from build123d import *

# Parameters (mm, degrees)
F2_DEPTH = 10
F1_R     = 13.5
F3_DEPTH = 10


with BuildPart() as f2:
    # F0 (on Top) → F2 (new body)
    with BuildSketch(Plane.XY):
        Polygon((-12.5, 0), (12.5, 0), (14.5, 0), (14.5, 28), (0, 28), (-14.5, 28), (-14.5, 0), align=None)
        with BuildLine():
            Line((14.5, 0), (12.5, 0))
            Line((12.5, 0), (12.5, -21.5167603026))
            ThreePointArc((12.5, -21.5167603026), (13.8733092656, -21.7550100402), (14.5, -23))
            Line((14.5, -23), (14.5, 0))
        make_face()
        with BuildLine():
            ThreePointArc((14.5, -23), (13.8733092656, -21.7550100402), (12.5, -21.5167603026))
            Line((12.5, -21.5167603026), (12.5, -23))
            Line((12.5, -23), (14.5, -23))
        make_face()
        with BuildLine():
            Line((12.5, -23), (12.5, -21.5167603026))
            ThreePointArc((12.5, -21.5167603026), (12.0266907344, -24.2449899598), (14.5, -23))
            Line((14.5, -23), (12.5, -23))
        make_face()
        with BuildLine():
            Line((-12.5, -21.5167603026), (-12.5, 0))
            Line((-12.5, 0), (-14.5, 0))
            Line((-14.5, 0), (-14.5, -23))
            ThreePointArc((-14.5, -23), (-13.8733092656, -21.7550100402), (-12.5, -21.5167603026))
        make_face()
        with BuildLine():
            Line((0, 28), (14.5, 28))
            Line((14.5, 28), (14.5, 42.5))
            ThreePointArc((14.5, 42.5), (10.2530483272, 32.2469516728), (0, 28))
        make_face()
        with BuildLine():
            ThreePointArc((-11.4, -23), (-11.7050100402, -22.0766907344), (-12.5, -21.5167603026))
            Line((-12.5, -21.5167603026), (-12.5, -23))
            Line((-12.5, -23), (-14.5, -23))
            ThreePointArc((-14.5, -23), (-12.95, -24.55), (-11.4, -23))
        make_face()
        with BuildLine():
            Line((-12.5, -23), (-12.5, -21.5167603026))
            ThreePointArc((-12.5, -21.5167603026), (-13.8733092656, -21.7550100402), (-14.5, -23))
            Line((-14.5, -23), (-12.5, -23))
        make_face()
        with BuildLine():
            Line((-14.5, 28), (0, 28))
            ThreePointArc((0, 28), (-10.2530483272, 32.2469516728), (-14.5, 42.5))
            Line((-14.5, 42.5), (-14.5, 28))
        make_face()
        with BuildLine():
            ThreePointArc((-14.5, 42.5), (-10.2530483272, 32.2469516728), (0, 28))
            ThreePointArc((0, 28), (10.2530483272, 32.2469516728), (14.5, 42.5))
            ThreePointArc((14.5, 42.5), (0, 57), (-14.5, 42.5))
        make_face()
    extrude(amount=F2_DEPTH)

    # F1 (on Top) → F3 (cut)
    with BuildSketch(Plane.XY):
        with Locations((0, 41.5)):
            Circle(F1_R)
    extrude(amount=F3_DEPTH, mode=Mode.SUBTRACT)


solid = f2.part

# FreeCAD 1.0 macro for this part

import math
import FreeCAD as App
import Part
import Sketcher

V = App.Vector
Q = App.Units.Quantity

doc = App.newDocument("Part")
body = doc.addObject("PartDesign::Body", "Body")

sketch1 = doc.addObject("Sketcher::SketchObject", "Sketch")
body.addObject(sketch1)
sketch1.AttachmentSupport = (doc.XY_Plane, [""])
sketch1.MapMode = "FlatFace"
sketch1.addGeometry([
    Part.ArcOfCircle(Part.Circle(V(-12.9, -23, 0), V(0, 0, 1), 1.6), math.radians(180), math.radians(360)),
    Part.ArcOfCircle(Part.Circle(V(-12.9, -23, 0), V(0, 0, 1), 1.6), math.radians(0), math.radians(73)),
    Part.LineSegment(V(-12.5, -21.5, 0), V(-12.5, 0, 0)),
    Part.LineSegment(V(-12.5, 0, 0), V(12.5, 0, 0)),
    Part.LineSegment(V(12.5, 0, 0), V(12.5, -21.5, 0)),
    Part.ArcOfCircle(Part.Circle(V(12.9, -23, 0), V(0, 0, 1), 1.6), math.radians(107), math.radians(360)),
    Part.LineSegment(V(14.5, -23, 0), V(14.5, 42.5, 0)),
    Part.ArcOfCircle(Part.Circle(V(0, 42.5, 0), V(0, 0, 1), 14.5), math.radians(0), math.radians(180)),
    Part.LineSegment(V(-14.5, 42.5, 0), V(-14.5, -23, 0)),
], False)
sketch1.addConstraint([
    Sketcher.Constraint("Tangent", 0, 2, 1, 1),
    Sketcher.Constraint("Coincident", 1, 2, 2, 1),
    Sketcher.Constraint("Coincident", 2, 2, 3, 1),
    Sketcher.Constraint("Coincident", 3, 2, 4, 1),
    Sketcher.Constraint("Coincident", 4, 2, 5, 1),
    Sketcher.Constraint("Tangent", 5, 2, 6, 1),
    Sketcher.Constraint("Tangent", 6, 2, 7, 1),
    Sketcher.Constraint("Tangent", 7, 2, 8, 1),
    Sketcher.Constraint("Tangent", 8, 2, 0, 1),
    Sketcher.Constraint("Vertical", 2),
    Sketcher.Constraint("Horizontal", 3),
    Sketcher.Constraint("Vertical", 4),
    Sketcher.Constraint("Vertical", 6),
    Sketcher.Constraint("Vertical", 8),
    Sketcher.Constraint("Equal", 0, 1),
    Sketcher.Constraint("Equal", 1, 5),
    Sketcher.Constraint("Symmetric", 2, 2, 3, 2, -1, 1),
    Sketcher.Constraint("Symmetric", 0, 3, 5, 3, -2),
    Sketcher.Constraint("Horizontal", 5, 3, 0, 2),
    Sketcher.Constraint("Radius", 7, Q("14.5 mm")),
    Sketcher.Constraint("DistanceX", 3, 1, 3, 2, Q("25 mm")),
    Sketcher.Constraint("Radius", 0, Q("1.55 mm")),
    Sketcher.Constraint("DistanceY", 6, 1, 6, 2, Q("65.5 mm")),
    Sketcher.Constraint("DistanceY", 0, 3, -1, 1, Q("23 mm")),
])
pad1 = doc.addObject("PartDesign::Pad", "Pad")
body.addObject(pad1)
pad1.Profile = sketch1
pad1.Length = 10

sketch2 = doc.addObject("Sketcher::SketchObject", "Sketch001")
body.addObject(sketch2)
sketch2.AttachmentSupport = (doc.XY_Plane, [""])
sketch2.MapMode = "FlatFace"
sketch2.addGeometry(Part.Circle(V(0, 42, 0), V(0, 0, 1), 14), False)
sketch2.addConstraint([
    Sketcher.Constraint("PointOnObject", 0, 3, -2),
    Sketcher.Constraint("Diameter", 0, Q("27 mm")),
    Sketcher.Constraint("DistanceY", -1, 1, 0, 3, Q("41.5 mm")),
])
pocket1 = doc.addObject("PartDesign::Pocket", "Pocket")
body.addObject(pocket1)
pocket1.Profile = sketch2
pocket1.Length = 10
pocket1.Reversed = True

doc.recompute()
